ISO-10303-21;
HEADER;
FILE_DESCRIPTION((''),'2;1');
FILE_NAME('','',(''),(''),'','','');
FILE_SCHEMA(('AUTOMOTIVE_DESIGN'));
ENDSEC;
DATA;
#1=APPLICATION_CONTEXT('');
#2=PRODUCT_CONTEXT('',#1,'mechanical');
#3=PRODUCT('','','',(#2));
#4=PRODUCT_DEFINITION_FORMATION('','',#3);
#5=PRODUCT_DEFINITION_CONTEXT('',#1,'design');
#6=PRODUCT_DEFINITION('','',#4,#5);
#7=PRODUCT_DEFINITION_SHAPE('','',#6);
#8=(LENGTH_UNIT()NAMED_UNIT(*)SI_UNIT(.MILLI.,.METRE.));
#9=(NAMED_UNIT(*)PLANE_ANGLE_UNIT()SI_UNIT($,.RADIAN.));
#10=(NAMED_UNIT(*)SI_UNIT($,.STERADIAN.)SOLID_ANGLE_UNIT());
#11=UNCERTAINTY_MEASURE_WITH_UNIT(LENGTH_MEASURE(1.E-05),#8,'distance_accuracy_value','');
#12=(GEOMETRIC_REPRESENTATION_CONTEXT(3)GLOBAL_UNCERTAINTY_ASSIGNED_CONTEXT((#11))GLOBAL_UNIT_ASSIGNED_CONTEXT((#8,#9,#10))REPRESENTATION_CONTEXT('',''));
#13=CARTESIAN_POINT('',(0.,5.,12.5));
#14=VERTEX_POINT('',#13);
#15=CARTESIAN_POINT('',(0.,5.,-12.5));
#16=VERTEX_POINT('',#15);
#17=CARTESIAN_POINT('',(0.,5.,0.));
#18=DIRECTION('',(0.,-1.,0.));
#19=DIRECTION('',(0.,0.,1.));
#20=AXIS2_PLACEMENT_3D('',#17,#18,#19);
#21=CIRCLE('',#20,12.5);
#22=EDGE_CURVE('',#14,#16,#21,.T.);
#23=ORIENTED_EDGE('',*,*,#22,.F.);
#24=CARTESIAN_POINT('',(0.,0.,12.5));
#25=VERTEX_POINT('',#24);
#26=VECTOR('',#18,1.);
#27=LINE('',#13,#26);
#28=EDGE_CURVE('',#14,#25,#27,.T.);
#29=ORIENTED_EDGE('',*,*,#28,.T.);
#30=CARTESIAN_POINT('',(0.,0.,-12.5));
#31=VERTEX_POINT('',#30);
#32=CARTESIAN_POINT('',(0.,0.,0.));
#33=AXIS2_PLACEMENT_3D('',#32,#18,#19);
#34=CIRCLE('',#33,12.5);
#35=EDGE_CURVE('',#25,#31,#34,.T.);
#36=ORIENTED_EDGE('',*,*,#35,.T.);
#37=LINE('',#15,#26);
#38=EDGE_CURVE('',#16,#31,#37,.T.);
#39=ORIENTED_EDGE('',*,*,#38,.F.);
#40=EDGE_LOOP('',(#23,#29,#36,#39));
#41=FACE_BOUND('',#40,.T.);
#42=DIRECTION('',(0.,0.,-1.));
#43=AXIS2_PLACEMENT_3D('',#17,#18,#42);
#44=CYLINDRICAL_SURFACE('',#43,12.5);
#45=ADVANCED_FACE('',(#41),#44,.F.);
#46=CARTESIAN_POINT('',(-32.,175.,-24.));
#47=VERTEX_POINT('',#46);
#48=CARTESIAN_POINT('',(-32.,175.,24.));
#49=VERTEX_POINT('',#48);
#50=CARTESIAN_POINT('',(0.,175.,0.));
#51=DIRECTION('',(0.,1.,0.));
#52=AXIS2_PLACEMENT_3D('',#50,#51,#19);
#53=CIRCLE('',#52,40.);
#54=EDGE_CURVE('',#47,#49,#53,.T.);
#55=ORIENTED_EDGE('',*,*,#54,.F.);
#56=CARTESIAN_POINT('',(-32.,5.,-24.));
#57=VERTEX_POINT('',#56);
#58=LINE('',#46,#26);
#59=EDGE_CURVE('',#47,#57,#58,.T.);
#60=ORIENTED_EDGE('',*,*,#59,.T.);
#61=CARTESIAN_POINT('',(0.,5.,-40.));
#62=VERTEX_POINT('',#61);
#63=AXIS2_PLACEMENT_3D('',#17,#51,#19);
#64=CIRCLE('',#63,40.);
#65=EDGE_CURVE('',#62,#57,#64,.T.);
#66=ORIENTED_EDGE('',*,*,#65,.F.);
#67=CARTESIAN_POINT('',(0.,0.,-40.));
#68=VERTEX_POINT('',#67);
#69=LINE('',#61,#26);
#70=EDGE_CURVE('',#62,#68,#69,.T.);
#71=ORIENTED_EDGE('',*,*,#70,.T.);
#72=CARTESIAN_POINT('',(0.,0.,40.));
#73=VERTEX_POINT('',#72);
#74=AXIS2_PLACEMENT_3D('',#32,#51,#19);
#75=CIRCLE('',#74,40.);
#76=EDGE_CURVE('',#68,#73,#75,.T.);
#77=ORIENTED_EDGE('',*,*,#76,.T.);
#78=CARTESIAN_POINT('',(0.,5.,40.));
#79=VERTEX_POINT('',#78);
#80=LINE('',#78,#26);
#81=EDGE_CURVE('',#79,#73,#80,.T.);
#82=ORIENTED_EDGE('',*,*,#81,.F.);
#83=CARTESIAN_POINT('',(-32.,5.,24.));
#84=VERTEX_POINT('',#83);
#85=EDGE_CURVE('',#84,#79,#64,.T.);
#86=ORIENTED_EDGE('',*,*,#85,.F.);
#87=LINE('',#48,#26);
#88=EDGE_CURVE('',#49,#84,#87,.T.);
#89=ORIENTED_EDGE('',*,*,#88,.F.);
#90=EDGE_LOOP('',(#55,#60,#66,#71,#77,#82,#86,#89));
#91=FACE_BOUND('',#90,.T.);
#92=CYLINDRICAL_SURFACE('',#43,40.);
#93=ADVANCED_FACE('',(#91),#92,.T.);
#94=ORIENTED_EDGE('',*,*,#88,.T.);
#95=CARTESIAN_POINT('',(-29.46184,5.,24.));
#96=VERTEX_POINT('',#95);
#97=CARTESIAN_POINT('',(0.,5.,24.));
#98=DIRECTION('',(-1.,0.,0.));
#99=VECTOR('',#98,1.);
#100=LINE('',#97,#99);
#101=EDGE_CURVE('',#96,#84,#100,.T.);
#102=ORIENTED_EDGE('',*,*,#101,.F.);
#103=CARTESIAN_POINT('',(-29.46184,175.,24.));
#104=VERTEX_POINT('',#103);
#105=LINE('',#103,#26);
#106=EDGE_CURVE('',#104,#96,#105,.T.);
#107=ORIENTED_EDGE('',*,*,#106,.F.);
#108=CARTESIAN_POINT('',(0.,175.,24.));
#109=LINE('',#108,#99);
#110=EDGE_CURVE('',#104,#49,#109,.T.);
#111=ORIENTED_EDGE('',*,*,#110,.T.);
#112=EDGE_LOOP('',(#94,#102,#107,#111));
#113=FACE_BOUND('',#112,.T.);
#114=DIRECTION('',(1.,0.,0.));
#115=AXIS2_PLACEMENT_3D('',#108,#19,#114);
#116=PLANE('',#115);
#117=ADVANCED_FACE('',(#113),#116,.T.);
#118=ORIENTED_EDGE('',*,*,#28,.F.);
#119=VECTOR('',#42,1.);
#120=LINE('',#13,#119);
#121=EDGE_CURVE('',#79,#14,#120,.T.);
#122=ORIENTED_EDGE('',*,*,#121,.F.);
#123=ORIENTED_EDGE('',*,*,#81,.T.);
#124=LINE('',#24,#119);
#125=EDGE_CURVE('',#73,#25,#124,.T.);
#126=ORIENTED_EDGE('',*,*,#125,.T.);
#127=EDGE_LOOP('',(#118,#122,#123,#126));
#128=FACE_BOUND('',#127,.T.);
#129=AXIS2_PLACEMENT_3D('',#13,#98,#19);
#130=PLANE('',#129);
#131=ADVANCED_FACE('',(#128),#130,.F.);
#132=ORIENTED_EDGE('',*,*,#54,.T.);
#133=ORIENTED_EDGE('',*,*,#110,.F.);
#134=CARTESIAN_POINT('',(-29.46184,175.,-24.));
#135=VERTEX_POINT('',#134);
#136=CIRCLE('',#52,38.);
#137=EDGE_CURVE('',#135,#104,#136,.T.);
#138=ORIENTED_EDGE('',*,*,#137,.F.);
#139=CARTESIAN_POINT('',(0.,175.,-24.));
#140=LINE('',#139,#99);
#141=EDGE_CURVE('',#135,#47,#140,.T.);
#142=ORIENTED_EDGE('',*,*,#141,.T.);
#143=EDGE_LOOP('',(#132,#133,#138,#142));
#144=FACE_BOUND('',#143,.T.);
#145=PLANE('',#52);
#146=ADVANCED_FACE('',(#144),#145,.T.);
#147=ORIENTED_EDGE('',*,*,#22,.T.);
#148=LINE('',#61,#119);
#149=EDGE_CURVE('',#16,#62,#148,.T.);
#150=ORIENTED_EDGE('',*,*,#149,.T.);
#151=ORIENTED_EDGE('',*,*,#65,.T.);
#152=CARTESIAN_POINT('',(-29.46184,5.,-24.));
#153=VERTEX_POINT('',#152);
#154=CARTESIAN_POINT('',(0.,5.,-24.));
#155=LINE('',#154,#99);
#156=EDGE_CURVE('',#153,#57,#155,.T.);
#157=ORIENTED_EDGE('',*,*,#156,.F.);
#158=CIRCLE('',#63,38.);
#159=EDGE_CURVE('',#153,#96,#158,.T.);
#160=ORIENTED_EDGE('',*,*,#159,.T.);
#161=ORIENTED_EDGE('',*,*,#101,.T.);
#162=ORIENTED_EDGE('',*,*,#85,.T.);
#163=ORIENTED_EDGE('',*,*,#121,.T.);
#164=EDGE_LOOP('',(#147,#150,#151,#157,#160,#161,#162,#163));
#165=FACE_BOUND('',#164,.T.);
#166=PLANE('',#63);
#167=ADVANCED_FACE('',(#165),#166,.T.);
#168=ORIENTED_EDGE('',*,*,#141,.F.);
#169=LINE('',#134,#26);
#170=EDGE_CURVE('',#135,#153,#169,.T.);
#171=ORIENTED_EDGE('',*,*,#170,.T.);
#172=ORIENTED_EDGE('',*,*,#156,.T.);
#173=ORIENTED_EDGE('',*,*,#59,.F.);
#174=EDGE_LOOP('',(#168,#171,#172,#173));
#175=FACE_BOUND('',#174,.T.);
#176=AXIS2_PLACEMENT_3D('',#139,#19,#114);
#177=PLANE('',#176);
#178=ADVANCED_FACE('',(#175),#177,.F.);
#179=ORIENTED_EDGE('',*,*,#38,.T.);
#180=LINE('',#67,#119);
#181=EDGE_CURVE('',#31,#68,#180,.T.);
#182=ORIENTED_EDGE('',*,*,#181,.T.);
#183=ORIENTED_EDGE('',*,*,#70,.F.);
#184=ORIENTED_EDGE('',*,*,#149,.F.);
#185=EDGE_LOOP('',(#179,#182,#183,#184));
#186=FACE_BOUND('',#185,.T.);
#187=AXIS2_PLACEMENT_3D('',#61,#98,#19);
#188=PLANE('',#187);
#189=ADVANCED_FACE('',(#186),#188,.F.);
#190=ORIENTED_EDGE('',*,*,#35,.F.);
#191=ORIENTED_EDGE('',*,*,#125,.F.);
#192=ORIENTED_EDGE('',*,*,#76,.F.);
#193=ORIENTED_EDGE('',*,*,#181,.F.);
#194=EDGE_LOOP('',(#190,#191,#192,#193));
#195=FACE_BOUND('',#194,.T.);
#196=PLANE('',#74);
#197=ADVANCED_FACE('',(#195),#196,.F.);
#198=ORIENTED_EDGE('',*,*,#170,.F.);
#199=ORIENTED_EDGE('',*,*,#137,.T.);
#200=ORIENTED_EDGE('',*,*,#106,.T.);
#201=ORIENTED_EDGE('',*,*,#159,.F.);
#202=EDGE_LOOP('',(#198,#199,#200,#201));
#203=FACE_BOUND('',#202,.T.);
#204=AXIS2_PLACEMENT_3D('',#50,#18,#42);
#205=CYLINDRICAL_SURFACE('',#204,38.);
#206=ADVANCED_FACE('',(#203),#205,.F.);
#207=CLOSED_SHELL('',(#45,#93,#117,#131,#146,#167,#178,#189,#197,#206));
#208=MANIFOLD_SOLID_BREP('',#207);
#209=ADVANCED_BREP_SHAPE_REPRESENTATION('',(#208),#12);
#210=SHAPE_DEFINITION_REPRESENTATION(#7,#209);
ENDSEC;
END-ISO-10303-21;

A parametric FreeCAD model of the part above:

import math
import FreeCAD as App
import Part
import Sketcher
from FreeCAD import Vector

doc = App.newDocument("Part")
body = doc.addObject("PartDesign::Body", "Body")

sketch1 = doc.addObject("Sketcher::SketchObject", "Sketch")
body.addObject(sketch1)
sketch1.AttachmentSupport = (doc.XZ_Plane, [""])
sketch1.MapMode = "FlatFace"
sketch1.addGeometry(Part.LineSegment(Vector(0, -12, 0), Vector(0, -40, 0)), False)
sketch1.addGeometry(Part.ArcOfCircle(Part.Circle(Vector(0, 0, 0), Vector(0, 0, 1), 40), math.radians(90), math.radians(270)), False)
sketch1.addGeometry(Part.LineSegment(Vector(0, 40, 0), Vector(0, 12, 0)), False)
sketch1.addGeometry(Part.ArcOfCircle(Part.Circle(Vector(0, 0, 0), Vector(0, 0, 1), 12), math.radians(90), math.radians(270)), False)
sketch1.addConstraint(Sketcher.Constraint("Coincident", 0, 2, 1, 2))
sketch1.addConstraint(Sketcher.Constraint("Coincident", 1, 1, 2, 1))
sketch1.addConstraint(Sketcher.Constraint("Coincident", 2, 2, 3, 1))
sketch1.addConstraint(Sketcher.Constraint("Coincident", 3, 2, 0, 1))
sketch1.addConstraint(Sketcher.Constraint("Vertical", 0))
sketch1.addConstraint(Sketcher.Constraint("Vertical", 2))
sketch1.addConstraint(Sketcher.Constraint("Coincident", 1, 3, -1, 1))
sketch1.addConstraint(Sketcher.Constraint("Coincident", 3, 3, -1, 1))
sketch1.addConstraint(Sketcher.Constraint("PointOnObject", 0, 2, -2))
sketch1.addConstraint(Sketcher.Constraint("PointOnObject", 1, 1, -2))
sketch1.addConstraint(Sketcher.Constraint("Radius", 1, 40.0))
sketch1.addConstraint(Sketcher.Constraint("Radius", 3, 12.5))
pad1 = doc.addObject("PartDesign::Pad", "Pad")
body.addObject(pad1)
pad1.Profile = sketch1
pad1.Length = 5
pad1.Reversed = True

sketch2 = doc.addObject("Sketcher::SketchObject", "Sketch001")
body.addObject(sketch2)
sketch2.AttachmentSupport = (doc.XZ_Plane, [""])
sketch2.MapMode = "FlatFace"
sketch2.AttachmentOffset = App.Placement(Vector(0, 0, -5), App.Rotation())
sketch2.addGeometry(Part.ArcOfCircle(Part.Circle(Vector(0, 0, 0), Vector(0, 0, 1), 38), math.radians(141), math.radians(219)), False)
sketch2.addGeometry(Part.LineSegment(Vector(-29.5, -24, 0), Vector(-32, -24, 0)), False)
sketch2.addGeometry(Part.ArcOfCircle(Part.Circle(Vector(0, 0, 0), Vector(0, 0, 1), 40), math.radians(143), math.radians(217)), False)
sketch2.addGeometry(Part.LineSegment(Vector(-32, 24, 0), Vector(-29.5, 24, 0)), False)
sketch2.addConstraint(Sketcher.Constraint("Coincident", 0, 2, 1, 1))
sketch2.addConstraint(Sketcher.Constraint("Coincident", 1, 2, 2, 2))
sketch2.addConstraint(Sketcher.Constraint("Coincident", 2, 1, 3, 1))
sketch2.addConstraint(Sketcher.Constraint("Coincident", 3, 2, 0, 1))
sketch2.addConstraint(Sketcher.Constraint("Horizontal", 1))
sketch2.addConstraint(Sketcher.Constraint("Horizontal", 3))
sketch2.addConstraint(Sketcher.Constraint("Coincident", 0, 3, -1, 1))
sketch2.addConstraint(Sketcher.Constraint("Coincident", 2, 3, -1, 1))
sketch2.addConstraint(Sketcher.Constraint("Vertical", 1, 2, 2, 1))
sketch2.addConstraint(Sketcher.Constraint("Radius", 0, 38.0))
sketch2.addConstraint(Sketcher.Constraint("Radius", 2, 40.0))
sketch2.addConstraint(Sketcher.Constraint("DistanceY", 0, 2, -1, 1, 24.0))
pad2 = doc.addObject("PartDesign::Pad", "Pad001")
body.addObject(pad2)
pad2.Profile = sketch2
pad2.Length = 170
pad2.Reversed = True

doc.recompute()
